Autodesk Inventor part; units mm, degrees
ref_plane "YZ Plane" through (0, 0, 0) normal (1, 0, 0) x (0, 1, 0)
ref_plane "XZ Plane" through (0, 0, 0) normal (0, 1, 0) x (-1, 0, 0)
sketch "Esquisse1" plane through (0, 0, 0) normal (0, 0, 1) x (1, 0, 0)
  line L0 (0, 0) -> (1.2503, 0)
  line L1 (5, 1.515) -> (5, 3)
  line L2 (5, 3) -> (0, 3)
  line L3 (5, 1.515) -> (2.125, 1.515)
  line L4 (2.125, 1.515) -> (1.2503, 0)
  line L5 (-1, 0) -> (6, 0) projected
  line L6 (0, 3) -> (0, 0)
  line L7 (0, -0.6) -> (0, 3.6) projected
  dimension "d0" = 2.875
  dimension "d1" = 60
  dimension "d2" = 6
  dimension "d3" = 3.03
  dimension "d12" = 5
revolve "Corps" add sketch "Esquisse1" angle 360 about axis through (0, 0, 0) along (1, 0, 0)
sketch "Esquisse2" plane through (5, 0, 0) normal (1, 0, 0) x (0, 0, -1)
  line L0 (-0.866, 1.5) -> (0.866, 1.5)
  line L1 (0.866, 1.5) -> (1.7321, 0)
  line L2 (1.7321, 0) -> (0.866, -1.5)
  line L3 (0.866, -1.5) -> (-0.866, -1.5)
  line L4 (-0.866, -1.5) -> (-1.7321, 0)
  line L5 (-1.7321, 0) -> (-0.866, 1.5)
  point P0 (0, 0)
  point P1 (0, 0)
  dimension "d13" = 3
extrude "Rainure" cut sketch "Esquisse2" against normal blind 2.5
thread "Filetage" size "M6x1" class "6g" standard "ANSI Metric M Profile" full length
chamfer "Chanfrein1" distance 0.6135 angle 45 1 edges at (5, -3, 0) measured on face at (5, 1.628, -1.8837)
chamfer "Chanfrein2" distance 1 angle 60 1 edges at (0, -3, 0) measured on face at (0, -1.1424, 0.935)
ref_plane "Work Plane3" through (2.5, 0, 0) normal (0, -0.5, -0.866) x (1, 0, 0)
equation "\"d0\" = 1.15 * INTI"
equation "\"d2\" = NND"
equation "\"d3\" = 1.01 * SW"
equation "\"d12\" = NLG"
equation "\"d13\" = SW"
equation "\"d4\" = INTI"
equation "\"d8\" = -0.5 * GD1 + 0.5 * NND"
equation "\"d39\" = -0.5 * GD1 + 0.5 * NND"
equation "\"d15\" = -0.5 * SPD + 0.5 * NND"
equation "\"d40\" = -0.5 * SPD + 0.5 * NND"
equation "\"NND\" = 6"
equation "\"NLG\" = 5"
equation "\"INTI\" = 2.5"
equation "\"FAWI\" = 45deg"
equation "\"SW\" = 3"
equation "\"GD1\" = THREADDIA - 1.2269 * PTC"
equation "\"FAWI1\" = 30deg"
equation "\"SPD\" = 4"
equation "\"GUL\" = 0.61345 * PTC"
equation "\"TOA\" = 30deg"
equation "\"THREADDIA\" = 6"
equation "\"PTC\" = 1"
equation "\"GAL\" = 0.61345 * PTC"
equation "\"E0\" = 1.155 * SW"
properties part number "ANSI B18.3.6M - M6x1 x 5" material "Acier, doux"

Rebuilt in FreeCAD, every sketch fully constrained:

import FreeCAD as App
import Part
import Sketcher
Q = App.Units.Quantity


def edges_at(feature, points):
    """Names of the edges that pass closest to the given points."""
    edges = feature.Shape.Edges
    near = lambda p: min(range(len(edges)), key=lambda i: edges[i].distToShape(Part.Vertex(*p))[0])
    return sorted({f"Edge{near(p) + 1}" for p in points})


def add_polygon(sketch, points):
    """Adds a closed chain of lines whose ends are joined by coincident constraints."""
    first, n = sketch.GeometryCount, len(points)
    for a, b in zip(points, points[1:] + points[:1]):
        sketch.addGeometry(Part.LineSegment(App.Vector(*a, 0), App.Vector(*b, 0)), False)
    for i in range(n):
        sketch.addConstraint(Sketcher.Constraint("Coincident", first + i, 2, first + (i + 1) % n, 1))

doc = App.newDocument("Part")
body = doc.addObject("PartDesign::Body", "Body")

sketch1 = doc.addObject("Sketcher::SketchObject", "Sketch")
body.addObject(sketch1)
sketch1.AttachmentSupport = (doc.XY_Plane, [""])
sketch1.MapMode = "FlatFace"
add_polygon(sketch1, [(0, 3), (0, 0), (1.3, 0), (2.1, 1.5), (5, 1.5), (5, 3)])
sketch1.addConstraint([
    Sketcher.Constraint("Vertical", 0),
    Sketcher.Constraint("Horizontal", 1),
    Sketcher.Constraint("Horizontal", 3),
    Sketcher.Constraint("Vertical", 4),
    Sketcher.Constraint("Horizontal", 5),
    Sketcher.Constraint("Coincident", 0, 2, -1, 1),
    Sketcher.Constraint("DistanceX", 5, 2, 5, 1, 5.0),
    Sketcher.Constraint("Angle", 2, Q("59.9996 deg")),
    Sketcher.Constraint("DistanceX", 3, 1, 3, 2, 2.875),
    Sketcher.Constraint("DistanceY", 0, 2, 0, 1, 3.0),
    Sketcher.Constraint("DistanceY", 4, 1, 4, 2, 1.485),
])
revolution = doc.addObject("PartDesign::Revolution", "Revolution")
body.addObject(revolution)
revolution.Profile = sketch1
revolution.ReferenceAxis = (sketch1, ["H_Axis"])
revolution.Angle = 360

sketch2 = doc.addObject("Sketcher::SketchObject", "Sketch001")
body.addObject(sketch2)
sketch2.AttachmentSupport = (doc.YZ_Plane, [""])
sketch2.MapMode = "FlatFace"
sketch2.AttachmentOffset = App.Placement(App.Vector(0, 0, 5), App.Rotation())
add_polygon(sketch2, [(1.5, -0.9), (1.5, 0.9), (0, 1.7), (-1.5, 0.9), (-1.5, -0.9), (0, -1.7)])
sketch2.addConstraint([
    Sketcher.Constraint("Vertical", 0),
    Sketcher.Constraint("Vertical", 3),
    Sketcher.Constraint("Symmetric", 0, 2, 3, 2, -1, 1),
    Sketcher.Constraint("Symmetric", 1, 2, 4, 2, -1, 1),
    Sketcher.Constraint("PointOnObject", 1, 2, -2),
    Sketcher.Constraint("Parallel", 2, 5),
    Sketcher.Constraint("Horizontal", 0, 2, 2, 2),
    Sketcher.Constraint("DistanceX", 2, 2, 0, 2, 3.0),
    Sketcher.Constraint("DistanceY", 0, 1, 0, 2, 1.732),
    Sketcher.Constraint("Distance", 1, 1.732),
])
pocket1 = doc.addObject("PartDesign::Pocket", "Pocket")
body.addObject(pocket1)
pocket1.Profile = sketch2
pocket1.Length = 2.5
doc.recompute()

chamfer = doc.addObject("PartDesign::Chamfer", "Chamfer")
body.addObject(chamfer)
chamfer.Base = (pocket1, edges_at(pocket1, [(5, -3, 0)]))
chamfer.Size = 0.6135
doc.recompute()

chamfer2 = doc.addObject("PartDesign::Chamfer", "Chamfer001")
body.addObject(chamfer2)
chamfer2.Base = (chamfer, edges_at(chamfer, [(0, -3, 0)]))
chamfer2.ChamferType = "Distance and Angle"
chamfer2.Size = 1
chamfer2.Angle = 60
chamfer2.FlipDirection = True

doc.recompute()
